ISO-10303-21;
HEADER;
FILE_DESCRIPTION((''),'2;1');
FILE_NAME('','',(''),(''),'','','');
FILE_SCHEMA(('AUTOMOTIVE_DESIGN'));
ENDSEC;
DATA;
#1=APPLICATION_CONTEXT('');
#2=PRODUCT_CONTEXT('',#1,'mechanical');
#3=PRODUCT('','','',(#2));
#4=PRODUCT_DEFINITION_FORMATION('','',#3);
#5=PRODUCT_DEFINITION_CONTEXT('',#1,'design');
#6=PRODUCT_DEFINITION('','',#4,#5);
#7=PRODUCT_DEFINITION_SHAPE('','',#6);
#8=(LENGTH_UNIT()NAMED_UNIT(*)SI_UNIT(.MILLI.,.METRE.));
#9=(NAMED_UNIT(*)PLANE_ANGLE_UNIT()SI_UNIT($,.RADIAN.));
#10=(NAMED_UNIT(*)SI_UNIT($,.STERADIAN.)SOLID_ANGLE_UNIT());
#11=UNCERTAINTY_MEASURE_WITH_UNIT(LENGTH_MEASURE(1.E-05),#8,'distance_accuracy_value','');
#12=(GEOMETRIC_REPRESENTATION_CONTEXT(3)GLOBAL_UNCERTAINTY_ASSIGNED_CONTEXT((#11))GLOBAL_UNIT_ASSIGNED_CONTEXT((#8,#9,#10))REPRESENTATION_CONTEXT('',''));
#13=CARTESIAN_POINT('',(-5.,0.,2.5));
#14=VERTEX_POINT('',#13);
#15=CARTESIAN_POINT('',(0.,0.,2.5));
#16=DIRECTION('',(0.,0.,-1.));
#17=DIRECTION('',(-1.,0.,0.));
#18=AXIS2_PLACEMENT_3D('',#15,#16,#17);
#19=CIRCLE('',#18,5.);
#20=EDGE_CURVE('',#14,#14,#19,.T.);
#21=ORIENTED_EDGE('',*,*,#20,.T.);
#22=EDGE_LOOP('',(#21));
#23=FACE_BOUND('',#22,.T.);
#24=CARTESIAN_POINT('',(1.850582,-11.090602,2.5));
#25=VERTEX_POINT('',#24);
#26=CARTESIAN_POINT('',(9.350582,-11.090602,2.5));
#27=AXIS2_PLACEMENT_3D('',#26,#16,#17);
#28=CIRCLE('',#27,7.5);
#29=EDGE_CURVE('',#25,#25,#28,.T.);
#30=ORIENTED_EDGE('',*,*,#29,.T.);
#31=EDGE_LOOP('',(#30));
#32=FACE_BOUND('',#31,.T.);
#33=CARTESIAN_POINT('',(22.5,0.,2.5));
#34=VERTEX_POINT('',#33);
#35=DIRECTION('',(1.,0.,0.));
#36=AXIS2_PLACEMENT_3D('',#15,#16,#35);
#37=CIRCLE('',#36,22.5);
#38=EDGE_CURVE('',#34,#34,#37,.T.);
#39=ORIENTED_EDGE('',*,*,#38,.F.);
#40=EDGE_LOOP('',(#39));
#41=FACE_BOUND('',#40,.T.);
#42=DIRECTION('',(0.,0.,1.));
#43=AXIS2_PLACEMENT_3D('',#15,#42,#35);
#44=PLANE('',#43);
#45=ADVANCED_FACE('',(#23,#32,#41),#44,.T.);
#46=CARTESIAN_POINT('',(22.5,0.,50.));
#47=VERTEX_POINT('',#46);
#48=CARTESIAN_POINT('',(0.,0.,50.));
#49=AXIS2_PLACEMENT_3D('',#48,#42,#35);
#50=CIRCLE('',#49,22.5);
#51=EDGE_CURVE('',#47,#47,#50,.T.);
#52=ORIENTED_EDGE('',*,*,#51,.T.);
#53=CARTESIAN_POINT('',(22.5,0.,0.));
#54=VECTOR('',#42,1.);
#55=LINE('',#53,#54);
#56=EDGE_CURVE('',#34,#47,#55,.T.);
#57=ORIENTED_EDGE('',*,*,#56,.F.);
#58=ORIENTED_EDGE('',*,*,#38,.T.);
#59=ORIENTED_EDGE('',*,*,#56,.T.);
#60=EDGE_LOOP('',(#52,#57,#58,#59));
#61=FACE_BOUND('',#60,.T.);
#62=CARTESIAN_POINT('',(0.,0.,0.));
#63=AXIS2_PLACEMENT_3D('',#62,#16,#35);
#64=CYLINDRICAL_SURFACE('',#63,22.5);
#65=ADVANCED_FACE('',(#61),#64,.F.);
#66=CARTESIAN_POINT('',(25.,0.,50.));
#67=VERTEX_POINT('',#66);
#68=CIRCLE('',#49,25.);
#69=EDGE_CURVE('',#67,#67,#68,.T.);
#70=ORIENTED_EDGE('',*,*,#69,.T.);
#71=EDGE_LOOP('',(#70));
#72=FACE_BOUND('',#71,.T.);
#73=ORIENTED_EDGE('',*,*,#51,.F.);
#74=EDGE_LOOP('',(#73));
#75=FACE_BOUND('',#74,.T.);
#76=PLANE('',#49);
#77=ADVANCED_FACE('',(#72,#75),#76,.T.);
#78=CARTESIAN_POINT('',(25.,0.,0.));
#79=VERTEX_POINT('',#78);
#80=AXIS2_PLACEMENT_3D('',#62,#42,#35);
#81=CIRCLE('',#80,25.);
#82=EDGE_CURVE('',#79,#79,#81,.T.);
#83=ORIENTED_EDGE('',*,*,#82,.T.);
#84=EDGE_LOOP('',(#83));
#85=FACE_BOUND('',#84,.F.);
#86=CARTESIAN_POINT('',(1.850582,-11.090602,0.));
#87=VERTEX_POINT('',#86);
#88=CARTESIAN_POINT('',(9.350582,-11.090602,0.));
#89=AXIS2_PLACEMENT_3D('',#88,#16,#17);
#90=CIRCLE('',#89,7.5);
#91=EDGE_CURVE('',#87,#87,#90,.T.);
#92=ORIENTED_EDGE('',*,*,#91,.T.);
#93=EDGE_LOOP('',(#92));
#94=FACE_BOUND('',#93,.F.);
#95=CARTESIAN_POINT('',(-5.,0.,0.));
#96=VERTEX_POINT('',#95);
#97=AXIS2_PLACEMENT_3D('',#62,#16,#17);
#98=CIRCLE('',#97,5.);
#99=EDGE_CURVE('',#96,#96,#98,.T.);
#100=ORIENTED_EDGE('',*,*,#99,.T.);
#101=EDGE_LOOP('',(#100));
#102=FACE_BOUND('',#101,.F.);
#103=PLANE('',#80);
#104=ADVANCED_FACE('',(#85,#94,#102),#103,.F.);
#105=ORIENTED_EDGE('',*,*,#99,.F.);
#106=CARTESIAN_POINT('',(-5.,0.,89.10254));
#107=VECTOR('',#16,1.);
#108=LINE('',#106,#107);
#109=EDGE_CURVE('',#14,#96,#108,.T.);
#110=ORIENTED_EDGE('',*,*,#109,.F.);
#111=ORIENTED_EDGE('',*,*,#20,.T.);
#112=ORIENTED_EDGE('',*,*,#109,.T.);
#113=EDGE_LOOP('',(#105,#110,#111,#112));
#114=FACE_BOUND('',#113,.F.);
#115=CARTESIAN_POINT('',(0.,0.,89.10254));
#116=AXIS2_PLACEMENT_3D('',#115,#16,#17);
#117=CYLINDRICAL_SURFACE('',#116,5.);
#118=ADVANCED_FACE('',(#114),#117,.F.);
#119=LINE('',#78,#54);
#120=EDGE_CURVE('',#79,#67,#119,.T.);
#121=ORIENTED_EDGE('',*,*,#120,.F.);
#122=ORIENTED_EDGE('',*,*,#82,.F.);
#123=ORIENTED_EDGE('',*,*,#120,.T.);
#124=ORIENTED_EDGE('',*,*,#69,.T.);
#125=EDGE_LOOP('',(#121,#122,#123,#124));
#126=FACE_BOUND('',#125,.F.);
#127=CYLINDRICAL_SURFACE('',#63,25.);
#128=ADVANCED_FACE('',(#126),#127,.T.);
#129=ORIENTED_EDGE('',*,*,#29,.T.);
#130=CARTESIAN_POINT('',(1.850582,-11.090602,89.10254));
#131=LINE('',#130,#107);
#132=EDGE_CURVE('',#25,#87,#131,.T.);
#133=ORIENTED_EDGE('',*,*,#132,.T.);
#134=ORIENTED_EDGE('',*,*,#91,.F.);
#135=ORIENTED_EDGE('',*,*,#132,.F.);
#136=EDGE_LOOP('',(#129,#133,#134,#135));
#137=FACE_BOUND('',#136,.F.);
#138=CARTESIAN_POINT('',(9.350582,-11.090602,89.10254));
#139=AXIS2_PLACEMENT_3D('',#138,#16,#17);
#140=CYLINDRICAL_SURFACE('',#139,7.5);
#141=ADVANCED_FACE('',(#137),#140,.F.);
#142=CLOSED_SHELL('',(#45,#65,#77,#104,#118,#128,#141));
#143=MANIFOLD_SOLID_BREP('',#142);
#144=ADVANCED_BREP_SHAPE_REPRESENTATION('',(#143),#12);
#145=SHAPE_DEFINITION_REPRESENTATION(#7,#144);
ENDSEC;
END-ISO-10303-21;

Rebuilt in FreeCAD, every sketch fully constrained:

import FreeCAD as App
import Part
import Sketcher
from FreeCAD import Vector
Q = App.Units.Quantity


def faces_at(feature, points):
    """Names of the faces that lie closest to the given points."""
    faces = feature.Shape.Faces
    near = lambda p: min(range(len(faces)), key=lambda i: faces[i].distToShape(Part.Vertex(*p))[0])
    return sorted({f"Face{near(p) + 1}" for p in points})

doc = App.newDocument("Part")
body = doc.addObject("PartDesign::Body", "Body")

sketch1 = body.newObject("Sketcher::SketchObject", "Sketch")
sketch1.AttachmentSupport = (doc.getObject("XY_Plane"), [""])
sketch1.MapMode = "FlatFace"
sketch1.addGeometry(Part.Circle(Vector(0, 0, 0), Vector(0, 0, 1), 25), False)
sketch1.addConstraint([
    Sketcher.Constraint("Coincident", 0, 3, -1, 1),
    Sketcher.Constraint("Diameter", 0, Q("50 mm")),
])
pad1 = body.newObject("PartDesign::Pad", "Pad")
pad1.Profile = sketch1
pad1.Length = 50
doc.recompute()

thickness = body.newObject("PartDesign::Thickness", "Thickness")
thickness.Base = (pad1, faces_at(pad1, [(0, 0, 50)]))
thickness.Value = 2.5
thickness.Reversed = True
thickness.Join = "Arc"

sketch2 = body.newObject("Sketcher::SketchObject", "Sketch001")
sketch2.AttachmentSupport = (doc.getObject("XY_Plane"), [""])
sketch2.MapMode = "FlatFace"
sketch2.AttachmentOffset = App.Placement(Vector(0, 0, 2.5), App.Rotation())
sketch2.addGeometry(Part.Circle(Vector(0, 0, 0), Vector(0, 0, 1), 5), False)
sketch2.addConstraint([
    Sketcher.Constraint("Coincident", 0, 3, -1, 1),
    Sketcher.Constraint("Diameter", 0, Q("10 mm")),
])
doc.recompute()
hole = body.newObject("PartDesign::Hole", "Hole")
hole.Profile = sketch2
hole.ThreadType = "None"
hole.Diameter = 10
hole.DepthType = "ThroughAll"

sketch3 = body.newObject("Sketcher::SketchObject", "Sketch002")
sketch3.AttachmentSupport = (doc.getObject("XY_Plane"), [""])
sketch3.MapMode = "FlatFace"
sketch3.AttachmentOffset = App.Placement(Vector(0, 0, 2.5), App.Rotation())
sketch3.addGeometry(Part.Circle(Vector(9.350582, -11.090602, 0), Vector(0, 0, 1), 7.5), False)
sketch3.addConstraint([
    Sketcher.Constraint("Diameter", 0, Q("15 mm")),
    Sketcher.Constraint("DistanceX", -1, 1, 0, 3, Q("9.350582 mm")),
    Sketcher.Constraint("DistanceY", 0, 3, -1, 1, Q("11.090602 mm")),
])
doc.recompute()
hole2 = body.newObject("PartDesign::Hole", "Hole001")
hole2.Profile = sketch3
hole2.ThreadType = "None"
hole2.Diameter = 15
hole2.DepthType = "ThroughAll"

doc.recompute()
